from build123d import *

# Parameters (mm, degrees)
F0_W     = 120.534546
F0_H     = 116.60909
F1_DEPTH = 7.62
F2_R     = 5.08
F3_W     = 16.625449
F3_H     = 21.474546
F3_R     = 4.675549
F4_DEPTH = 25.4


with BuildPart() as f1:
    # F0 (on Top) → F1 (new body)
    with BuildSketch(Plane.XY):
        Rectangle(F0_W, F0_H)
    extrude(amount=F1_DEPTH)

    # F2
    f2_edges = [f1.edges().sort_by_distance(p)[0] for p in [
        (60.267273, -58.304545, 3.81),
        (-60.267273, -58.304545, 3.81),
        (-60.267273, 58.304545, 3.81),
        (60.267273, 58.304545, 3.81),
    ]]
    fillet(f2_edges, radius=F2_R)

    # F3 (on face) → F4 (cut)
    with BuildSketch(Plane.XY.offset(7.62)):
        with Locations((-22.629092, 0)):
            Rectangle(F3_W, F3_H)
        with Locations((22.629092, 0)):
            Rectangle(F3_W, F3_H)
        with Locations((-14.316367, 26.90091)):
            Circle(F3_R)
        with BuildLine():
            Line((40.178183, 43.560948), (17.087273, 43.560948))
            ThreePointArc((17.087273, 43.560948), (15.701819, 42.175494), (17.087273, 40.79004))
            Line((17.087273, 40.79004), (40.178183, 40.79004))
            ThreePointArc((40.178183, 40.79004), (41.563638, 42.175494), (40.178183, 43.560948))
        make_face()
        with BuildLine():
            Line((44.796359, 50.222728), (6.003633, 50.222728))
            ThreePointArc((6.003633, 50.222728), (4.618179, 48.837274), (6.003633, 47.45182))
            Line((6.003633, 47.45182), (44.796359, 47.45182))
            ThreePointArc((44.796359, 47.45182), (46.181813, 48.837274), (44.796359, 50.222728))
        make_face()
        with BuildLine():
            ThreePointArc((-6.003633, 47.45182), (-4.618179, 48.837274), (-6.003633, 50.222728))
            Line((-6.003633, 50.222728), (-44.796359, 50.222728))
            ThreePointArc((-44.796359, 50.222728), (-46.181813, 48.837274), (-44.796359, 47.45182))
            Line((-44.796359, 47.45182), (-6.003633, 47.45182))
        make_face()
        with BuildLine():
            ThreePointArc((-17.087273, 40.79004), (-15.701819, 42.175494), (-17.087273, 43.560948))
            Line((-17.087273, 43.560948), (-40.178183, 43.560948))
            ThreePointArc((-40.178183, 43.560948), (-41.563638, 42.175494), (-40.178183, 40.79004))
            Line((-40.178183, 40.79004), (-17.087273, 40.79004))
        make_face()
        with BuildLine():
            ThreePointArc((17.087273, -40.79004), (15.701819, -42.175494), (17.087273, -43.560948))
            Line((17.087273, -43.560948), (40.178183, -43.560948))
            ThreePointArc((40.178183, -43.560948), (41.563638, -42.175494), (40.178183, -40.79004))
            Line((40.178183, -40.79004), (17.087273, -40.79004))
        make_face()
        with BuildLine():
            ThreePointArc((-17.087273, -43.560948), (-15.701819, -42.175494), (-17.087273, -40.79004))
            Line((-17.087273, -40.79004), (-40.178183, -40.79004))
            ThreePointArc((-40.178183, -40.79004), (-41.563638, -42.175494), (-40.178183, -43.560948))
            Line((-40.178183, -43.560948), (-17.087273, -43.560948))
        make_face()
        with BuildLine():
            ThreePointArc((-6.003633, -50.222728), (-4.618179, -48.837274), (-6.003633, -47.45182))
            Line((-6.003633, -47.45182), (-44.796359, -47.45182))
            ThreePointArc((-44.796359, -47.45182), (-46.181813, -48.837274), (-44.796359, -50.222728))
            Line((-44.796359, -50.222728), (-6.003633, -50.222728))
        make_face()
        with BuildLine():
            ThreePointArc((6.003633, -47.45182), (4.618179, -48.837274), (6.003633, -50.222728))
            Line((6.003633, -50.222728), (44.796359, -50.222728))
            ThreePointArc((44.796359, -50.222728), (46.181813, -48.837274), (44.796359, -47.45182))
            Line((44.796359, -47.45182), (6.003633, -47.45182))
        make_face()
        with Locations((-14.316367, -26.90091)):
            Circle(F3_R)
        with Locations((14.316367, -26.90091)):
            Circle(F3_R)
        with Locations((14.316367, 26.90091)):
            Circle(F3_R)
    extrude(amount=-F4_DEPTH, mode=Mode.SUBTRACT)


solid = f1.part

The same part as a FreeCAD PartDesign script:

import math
import FreeCAD as App
import Part
import Sketcher

V = App.Vector
Q = App.Units.Quantity


def edges_at(feature, points):
    """Names of the edges that pass closest to the given points."""
    edges = feature.Shape.Edges
    near = lambda p: min(range(len(edges)), key=lambda i: edges[i].distToShape(Part.Vertex(*p))[0])
    return sorted({f"Edge{near(p) + 1}" for p in points})

doc = App.newDocument("Part")
body = doc.addObject("PartDesign::Body", "Body")

sketch1 = body.newObject("Sketcher::SketchObject", "Sketch")
sketch1.AttachmentSupport = (doc.getObject("XY_Plane"), [""])
sketch1.MapMode = "FlatFace"
sketch1.addGeometry([
    Part.LineSegment(V(-60, 58, 0), V(-60, -58, 0)),
    Part.LineSegment(V(-60, -58, 0), V(60, -58, 0)),
    Part.LineSegment(V(60, -58, 0), V(60, 58, 0)),
    Part.LineSegment(V(60, 58, 0), V(-60, 58, 0)),
], False)
sketch1.addConstraint([
    Sketcher.Constraint("Coincident", 0, 2, 1, 1),
    Sketcher.Constraint("Coincident", 1, 2, 2, 1),
    Sketcher.Constraint("Coincident", 2, 2, 3, 1),
    Sketcher.Constraint("Coincident", 3, 2, 0, 1),
    Sketcher.Constraint("Vertical", 0),
    Sketcher.Constraint("Horizontal", 1),
    Sketcher.Constraint("Vertical", 2),
    Sketcher.Constraint("Horizontal", 3),
    Sketcher.Constraint("Symmetric", 0, 2, 2, 2, -1, 1),
    Sketcher.Constraint("DistanceY", 0, 2, 0, 1, Q("116.60909 mm")),
    Sketcher.Constraint("DistanceX", 1, 1, 1, 2, Q("120.534546 mm")),
])
pad1 = body.newObject("PartDesign::Pad", "Pad")
pad1.Profile = sketch1
pad1.Length = Q("0.3 in")
doc.recompute()

fillet = body.newObject("PartDesign::Fillet", "Fillet")
fillet.Base = (pad1, edges_at(pad1, [
    (60.267, -58.305, 3.81),
    (-60.267, -58.305, 3.81),
    (-60.267, 58.305, 3.81),
    (60.267, 58.305, 3.81),
]))
fillet.Radius = Q("0.2 in")

sketch2 = body.newObject("Sketcher::SketchObject", "Sketch001")
sketch2.AttachmentSupport = (doc.getObject("XY_Plane"), [""])
sketch2.MapMode = "FlatFace"
sketch2.AttachmentOffset = App.Placement(V(0, 0, 0.3 * 25.4), App.Rotation())
sketch2.addGeometry([
    Part.LineSegment(V(-30.9, 10.7, 0), V(-30.9, -10.7, 0)),
    Part.LineSegment(V(-30.9, -10.7, 0), V(-14.3, -10.7, 0)),
    Part.LineSegment(V(-14.3, -10.7, 0), V(-14.3, 10.7, 0)),
    Part.LineSegment(V(-14.3, 10.7, 0), V(-30.9, 10.7, 0)),
    Part.LineSegment(V(14.3, 10.7, 0), V(14.3, -10.7, 0)),
    Part.LineSegment(V(14.3, -10.7, 0), V(30.9, -10.7, 0)),
    Part.LineSegment(V(30.9, -10.7, 0), V(30.9, 10.7, 0)),
    Part.LineSegment(V(30.9, 10.7, 0), V(14.3, 10.7, 0)),
    Part.Circle(V(-14.3, 26.9, 0), V(0, 0, 1), 4.7),
    Part.LineSegment(V(40.2, 43.6, 0), V(17.1, 43.6, 0)),
    Part.ArcOfCircle(Part.Circle(V(17.1, 42.2, 0), V(0, 0, 1), 1.4), math.radians(90), math.radians(270)),
    Part.LineSegment(V(17.1, 40.8, 0), V(40.2, 40.8, 0)),
    Part.ArcOfCircle(Part.Circle(V(40.2, 42.2, 0), V(0, 0, 1), 1.4), math.radians(-90), math.radians(90)),
    Part.LineSegment(V(44.8, 50.2, 0), V(6, 50.2, 0)),
    Part.ArcOfCircle(Part.Circle(V(6, 48.8, 0), V(0, 0, 1), 1.4), math.radians(90), math.radians(270)),
    Part.LineSegment(V(6, 47.5, 0), V(44.8, 47.5, 0)),
    Part.ArcOfCircle(Part.Circle(V(44.8, 48.8, 0), V(0, 0, 1), 1.4), math.radians(-90), math.radians(90)),
    Part.ArcOfCircle(Part.Circle(V(-6, 48.8, 0), V(0, 0, 1), 1.4), math.radians(-90), math.radians(90)),
    Part.LineSegment(V(-6, 50.2, 0), V(-44.8, 50.2, 0)),
    Part.ArcOfCircle(Part.Circle(V(-44.8, 48.8, 0), V(0, 0, 1), 1.4), math.radians(90), math.radians(270)),
    Part.LineSegment(V(-44.8, 47.5, 0), V(-6, 47.5, 0)),
    Part.ArcOfCircle(Part.Circle(V(-17.1, 42.2, 0), V(0, 0, 1), 1.4), math.radians(-90), math.radians(90)),
    Part.LineSegment(V(-17.1, 43.6, 0), V(-40.2, 43.6, 0)),
    Part.ArcOfCircle(Part.Circle(V(-40.2, 42.2, 0), V(0, 0, 1), 1.4), math.radians(90), math.radians(270)),
    Part.LineSegment(V(-40.2, 40.8, 0), V(-17.1, 40.8, 0)),
    Part.ArcOfCircle(Part.Circle(V(17.1, -42.2, 0), V(0, 0, 1), 1.4), math.radians(90), math.radians(270)),
    Part.LineSegment(V(17.1, -43.6, 0), V(40.2, -43.6, 0)),
    Part.ArcOfCircle(Part.Circle(V(40.2, -42.2, 0), V(0, 0, 1), 1.4), math.radians(-90), math.radians(90)),
    Part.LineSegment(V(40.2, -40.8, 0), V(17.1, -40.8, 0)),
    Part.ArcOfCircle(Part.Circle(V(-17.1, -42.2, 0), V(0, 0, 1), 1.4), math.radians(-90), math.radians(90)),
    Part.LineSegment(V(-17.1, -40.8, 0), V(-40.2, -40.8, 0)),
    Part.ArcOfCircle(Part.Circle(V(-40.2, -42.2, 0), V(0, 0, 1), 1.4), math.radians(90), math.radians(270)),
    Part.LineSegment(V(-40.2, -43.6, 0), V(-17.1, -43.6, 0)),
    Part.ArcOfCircle(Part.Circle(V(-6, -48.8, 0), V(0, 0, 1), 1.4), math.radians(-90), math.radians(90)),
    Part.LineSegment(V(-6, -47.5, 0), V(-44.8, -47.5, 0)),
    Part.ArcOfCircle(Part.Circle(V(-44.8, -48.8, 0), V(0, 0, 1), 1.4), math.radians(90), math.radians(270)),
    Part.LineSegment(V(-44.8, -50.2, 0), V(-6, -50.2, 0)),
    Part.ArcOfCircle(Part.Circle(V(6, -48.8, 0), V(0, 0, 1), 1.4), math.radians(90), math.radians(270)),
    Part.LineSegment(V(6, -50.2, 0), V(44.8, -50.2, 0)),
    Part.ArcOfCircle(Part.Circle(V(44.8, -48.8, 0), V(0, 0, 1), 1.4), math.radians(-90), math.radians(90)),
    Part.LineSegment(V(44.8, -47.5, 0), V(6, -47.5, 0)),
    Part.Circle(V(-14.3, -26.9, 0), V(0, 0, 1), 4.7),
    Part.Circle(V(14.3, -26.9, 0), V(0, 0, 1), 4.7),
    Part.Circle(V(14.3, 26.9, 0), V(0, 0, 1), 4.7),
], False)
sketch2.addConstraint([
    Sketcher.Constraint("Coincident", 0, 2, 1, 1),
    Sketcher.Constraint("Coincident", 1, 2, 2, 1),
    Sketcher.Constraint("Coincident", 2, 2, 3, 1),
    Sketcher.Constraint("Coincident", 3, 2, 0, 1),
    Sketcher.Constraint("Coincident", 4, 2, 5, 1),
    Sketcher.Constraint("Coincident", 5, 2, 6, 1),
    Sketcher.Constraint("Coincident", 6, 2, 7, 1),
    Sketcher.Constraint("Coincident", 7, 2, 4, 1),
    Sketcher.Constraint("Tangent", 9, 2, 10, 1),
    Sketcher.Constraint("Tangent", 10, 2, 11, 1),
    Sketcher.Constraint("Tangent", 11, 2, 12, 1),
    Sketcher.Constraint("Tangent", 12, 2, 9, 1),
    Sketcher.Constraint("Tangent", 13, 2, 14, 1),
    Sketcher.Constraint("Tangent", 14, 2, 15, 1),
    Sketcher.Constraint("Tangent", 15, 2, 16, 1),
    Sketcher.Constraint("Tangent", 16, 2, 13, 1),
    Sketcher.Constraint("Tangent", 17, 2, 18, 1),
    Sketcher.Constraint("Tangent", 18, 2, 19, 1),
    Sketcher.Constraint("Tangent", 19, 2, 20, 1),
    Sketcher.Constraint("Tangent", 20, 2, 17, 1),
    Sketcher.Constraint("Tangent", 21, 2, 22, 1),
    Sketcher.Constraint("Tangent", 22, 2, 23, 1),
    Sketcher.Constraint("Tangent", 23, 2, 24, 1),
    Sketcher.Constraint("Tangent", 24, 2, 21, 1),
    Sketcher.Constraint("Tangent", 25, 2, 26, 1),
    Sketcher.Constraint("Tangent", 26, 2, 27, 1),
    Sketcher.Constraint("Tangent", 27, 2, 28, 1),
    Sketcher.Constraint("Tangent", 28, 2, 25, 1),
    Sketcher.Constraint("Tangent", 29, 2, 30, 1),
    Sketcher.Constraint("Tangent", 30, 2, 31, 1),
    Sketcher.Constraint("Tangent", 31, 2, 32, 1),
    Sketcher.Constraint("Tangent", 32, 2, 29, 1),
    Sketcher.Constraint("Tangent", 33, 2, 34, 1),
    Sketcher.Constraint("Tangent", 34, 2, 35, 1),
    Sketcher.Constraint("Tangent", 35, 2, 36, 1),
    Sketcher.Constraint("Tangent", 36, 2, 33, 1),
    Sketcher.Constraint("Tangent", 37, 2, 38, 1),
    Sketcher.Constraint("Tangent", 38, 2, 39, 1),
    Sketcher.Constraint("Tangent", 39, 2, 40, 1),
    Sketcher.Constraint("Tangent", 40, 2, 37, 1),
    Sketcher.Constraint("Vertical", 0),
    Sketcher.Constraint("Horizontal", 1),
    Sketcher.Constraint("Vertical", 2),
    Sketcher.Constraint("Horizontal", 3),
    Sketcher.Constraint("Vertical", 4),
    Sketcher.Constraint("Horizontal", 5),
    Sketcher.Constraint("Vertical", 6),
    Sketcher.Constraint("Horizontal", 7),
    Sketcher.Constraint("Horizontal", 9),
    Sketcher.Constraint("Horizontal", 11),
    Sketcher.Constraint("Horizontal", 13),
    Sketcher.Constraint("Horizontal", 15),
    Sketcher.Constraint("Horizontal", 18),
    Sketcher.Constraint("Horizontal", 20),
    Sketcher.Constraint("Horizontal", 22),
    Sketcher.Constraint("Horizontal", 24),
    Sketcher.Constraint("Horizontal", 26),
    Sketcher.Constraint("Horizontal", 28),
    Sketcher.Constraint("Horizontal", 30),
    Sketcher.Constraint("Horizontal", 32),
    Sketcher.Constraint("Horizontal", 34),
    Sketcher.Constraint("Horizontal", 36),
    Sketcher.Constraint("Horizontal", 38),
    Sketcher.Constraint("Horizontal", 40),
    Sketcher.Constraint("Equal", 12, 14),
    Sketcher.Constraint("Equal", 16, 17),
    Sketcher.Constraint("Equal", 19, 21),
    Sketcher.Constraint("Equal", 23, 25),
    Sketcher.Constraint("Equal", 27, 29),
    Sketcher.Constraint("Equal", 31, 33),
    Sketcher.Constraint("Equal", 35, 37),
    Sketcher.Constraint("Equal", 8, 41),
    Sketcher.Constraint("Equal", 41, 42),
    Sketcher.Constraint("Equal", 42, 43),
    Sketcher.Constraint("Symmetric", 21, 3, 25, 3, -1, 1),
    Sketcher.Constraint("Symmetric", 10, 3, 29, 3, -1, 1),
    Sketcher.Constraint("Symmetric", 14, 3, 33, 3, -1, 1),
    Sketcher.Constraint("Symmetric", 17, 3, 37, 3, -1, 1),
    Sketcher.Constraint("Symmetric", 8, 3, 42, 3, -1, 1),
    Sketcher.Constraint("Symmetric", 41, 3, 43, 3, -1, 1),
    Sketcher.Constraint("Symmetric", 2, 2, 4, 2, -1, 1),
    Sketcher.Constraint("Symmetric", 0, 2, 6, 2, -1, 1),
    Sketcher.Constraint("Symmetric", 14, 3, 17, 3, -2),
    Sketcher.Constraint("Symmetric", 10, 3, 21, 3, -2),
    Sketcher.Constraint("Symmetric", 41, 3, 42, 3, -2),
    Sketcher.Constraint("Horizontal", 1, 2, 4, 2),
    Sketcher.Constraint("Vertical", 12, 3, 27, 3),
    Sketcher.Constraint("Vertical", 23, 3, 31, 3),
    Sketcher.Constraint("Vertical", 19, 3, 35, 3),
    Sketcher.Constraint("Vertical", 16, 3, 39, 3),
    Sketcher.Constraint("Vertical", 41, 3, 1, 2),
    Sketcher.Constraint("Equal", 15, 18),
    Sketcher.Constraint("Equal", 11, 22),
    Sketcher.Constraint("DistanceX", 8, 3, 14, 3, Q("0.8 in")),
    Sketcher.Constraint("DistanceY", 35, 3, 0, 2, Q("1.5 in")),
    Sketcher.Constraint("Diameter", 8, Q("9.351098 mm")),
    Sketcher.Constraint("Radius", 10, Q("1.385454 mm")),
    Sketcher.Constraint("DistanceX", 1, 1, 1, 2, Q("16.625449 mm")),
    Sketcher.Constraint("DistanceX", 9, 2, 9, 1, Q("23.09091 mm")),
    Sketcher.Constraint("DistanceX", 13, 2, 13, 1, Q("38.792726 mm")),
    Sketcher.Constraint("DistanceY", 0, 2, 0, 1, Q("21.474546 mm")),
    Sketcher.Constraint("DistanceY", -1, 1, 8, 3, Q("26.90091 mm")),
    Sketcher.Constraint("DistanceX", -1, 1, 16, 3, Q("44.796359 mm")),
    Sketcher.Constraint("DistanceY", -1, 1, 9, 2, Q("43.560948 mm")),
    Sketcher.Constraint("DistanceX", 8, 3, 10, 3, Q("31.40364 mm")),
])
pocket1 = body.newObject("PartDesign::Pocket", "Pocket")
pocket1.Profile = sketch2
pocket1.Length = Q("1 in")

doc.recompute()
